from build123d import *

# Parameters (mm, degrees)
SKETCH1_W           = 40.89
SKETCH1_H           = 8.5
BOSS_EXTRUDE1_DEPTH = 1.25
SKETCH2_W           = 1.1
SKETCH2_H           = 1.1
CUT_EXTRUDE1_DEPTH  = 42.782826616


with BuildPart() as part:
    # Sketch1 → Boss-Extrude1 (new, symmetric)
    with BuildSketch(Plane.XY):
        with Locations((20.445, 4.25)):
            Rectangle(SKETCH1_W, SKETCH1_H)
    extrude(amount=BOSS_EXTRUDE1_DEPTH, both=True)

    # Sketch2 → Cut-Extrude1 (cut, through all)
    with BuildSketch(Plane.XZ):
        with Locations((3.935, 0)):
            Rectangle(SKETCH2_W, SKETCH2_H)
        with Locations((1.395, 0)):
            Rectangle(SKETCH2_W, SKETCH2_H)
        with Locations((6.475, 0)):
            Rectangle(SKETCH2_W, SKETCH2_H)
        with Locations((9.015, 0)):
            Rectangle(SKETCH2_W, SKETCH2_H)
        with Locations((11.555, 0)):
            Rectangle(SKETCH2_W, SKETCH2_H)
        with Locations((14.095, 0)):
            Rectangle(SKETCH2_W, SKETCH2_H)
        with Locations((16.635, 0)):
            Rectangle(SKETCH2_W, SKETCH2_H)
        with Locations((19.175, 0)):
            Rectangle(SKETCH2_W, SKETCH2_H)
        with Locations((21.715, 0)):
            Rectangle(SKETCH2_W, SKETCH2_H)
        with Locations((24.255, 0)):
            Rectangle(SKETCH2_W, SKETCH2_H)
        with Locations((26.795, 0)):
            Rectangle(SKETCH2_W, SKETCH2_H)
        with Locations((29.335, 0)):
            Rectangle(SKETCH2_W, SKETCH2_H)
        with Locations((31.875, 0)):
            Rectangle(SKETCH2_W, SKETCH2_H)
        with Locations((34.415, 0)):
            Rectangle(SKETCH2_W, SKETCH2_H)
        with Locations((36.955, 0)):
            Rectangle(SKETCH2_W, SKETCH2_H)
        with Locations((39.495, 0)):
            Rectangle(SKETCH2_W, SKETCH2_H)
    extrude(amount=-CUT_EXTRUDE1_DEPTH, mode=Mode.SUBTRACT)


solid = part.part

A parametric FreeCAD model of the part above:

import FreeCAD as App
import Part
import Sketcher
from FreeCAD import Vector


def add_polygon(sketch, points):
    """Adds a closed chain of lines whose ends are joined by coincident constraints."""
    first, n = sketch.GeometryCount, len(points)
    for a, b in zip(points, points[1:] + points[:1]):
        sketch.addGeometry(Part.LineSegment(App.Vector(*a, 0), App.Vector(*b, 0)), False)
    for i in range(n):
        sketch.addConstraint(Sketcher.Constraint("Coincident", first + i, 2, first + (i + 1) % n, 1))

doc = App.newDocument("Part")
body = doc.addObject("PartDesign::Body", "Body")

# Sketch on XY plane
sketch1 = body.newObject("Sketcher::SketchObject", "Sketch")
sketch1.AttachmentSupport = (doc.getObject("XY_Plane"), [""])
sketch1.MapMode = "FlatFace"
add_polygon(sketch1, [(0, 8), (0, 0), (41, 0), (41, 8)])  # lines 0-3
sketch1.addConstraint(Sketcher.Constraint("Vertical", 0))
sketch1.addConstraint(Sketcher.Constraint("Horizontal", 1))
sketch1.addConstraint(Sketcher.Constraint("Vertical", 2))
sketch1.addConstraint(Sketcher.Constraint("Horizontal", 3))
sketch1.addConstraint(Sketcher.Constraint("Coincident", 0, 2, -1, 1))
sketch1.addConstraint(Sketcher.Constraint("DistanceY", 0, 2, 0, 1, 8.5))
sketch1.addConstraint(Sketcher.Constraint("DistanceX", 1, 1, 1, 2, 40.89))
pad1 = body.newObject("PartDesign::Pad", "Pad")
pad1.Profile = sketch1
pad1.Length = 2.5
pad1.Midplane = True

# Sketch on XZ plane
sketch2 = body.newObject("Sketcher::SketchObject", "Sketch001")
sketch2.AttachmentSupport = (doc.getObject("XZ_Plane"), [""])
sketch2.MapMode = "FlatFace"
add_polygon(sketch2, [(3.4, 0.6), (3.4, -0.6), (4.5, -0.6), (4.5, 0.6)])  # lines 0-3
add_polygon(sketch2, [(0.8, 0.6), (0.8, -0.6), (1.9, -0.6), (1.9, 0.6)])  # lines 4-7
add_polygon(sketch2, [(5.9, 0.6), (5.9, -0.6), (7, -0.6), (7, 0.6)])  # lines 8-11
add_polygon(sketch2, [(8.5, 0.6), (8.5, -0.6), (9.6, -0.6), (9.6, 0.6)])  # lines 12-15
add_polygon(sketch2, [(11, 0.6), (11, -0.6), (12.1, -0.6), (12.1, 0.6)])  # lines 16-19
add_polygon(sketch2, [(13.5, 0.6), (13.5, -0.6), (14.6, -0.6), (14.6, 0.6)])  # lines 20-23
add_polygon(sketch2, [(16.1, 0.6), (16.1, -0.6), (17.2, -0.6), (17.2, 0.6)])  # lines 24-27
add_polygon(sketch2, [(18.6, 0.6), (18.6, -0.6), (19.7, -0.6), (19.7, 0.6)])  # lines 28-31
add_polygon(sketch2, [(21.2, 0.6), (21.2, -0.6), (22.3, -0.6), (22.3, 0.6)])  # lines 32-35
add_polygon(sketch2, [(23.7, 0.6), (23.7, -0.6), (24.8, -0.6), (24.8, 0.6)])  # lines 36-39
add_polygon(sketch2, [(26.2, 0.6), (26.2, -0.6), (27.3, -0.6), (27.3, 0.6)])  # lines 40-43
add_polygon(sketch2, [(28.8, 0.6), (28.8, -0.6), (29.9, -0.6), (29.9, 0.6)])  # lines 44-47
add_polygon(sketch2, [(31.3, 0.6), (31.3, -0.6), (32.4, -0.6), (32.4, 0.6)])  # lines 48-51
add_polygon(sketch2, [(33.9, 0.6), (33.9, -0.6), (35, -0.6), (35, 0.6)])  # lines 52-55
add_polygon(sketch2, [(36.4, 0.6), (36.4, -0.6), (37.5, -0.6), (37.5, 0.6)])  # lines 56-59
add_polygon(sketch2, [(38.9, 0.6), (38.9, -0.6), (40, -0.6), (40, 0.6)])  # lines 60-63
sketch2.addConstraint(Sketcher.Constraint("Vertical", 0))
sketch2.addConstraint(Sketcher.Constraint("Horizontal", 1))
sketch2.addConstraint(Sketcher.Constraint("Vertical", 2))
sketch2.addConstraint(Sketcher.Constraint("Horizontal", 3))
sketch2.addConstraint(Sketcher.Constraint("Vertical", 4))
sketch2.addConstraint(Sketcher.Constraint("Horizontal", 5))
sketch2.addConstraint(Sketcher.Constraint("Vertical", 6))
sketch2.addConstraint(Sketcher.Constraint("Horizontal", 7))
sketch2.addConstraint(Sketcher.Constraint("Vertical", 8))
sketch2.addConstraint(Sketcher.Constraint("Horizontal", 9))
sketch2.addConstraint(Sketcher.Constraint("Vertical", 10))
sketch2.addConstraint(Sketcher.Constraint("Horizontal", 11))
sketch2.addConstraint(Sketcher.Constraint("Vertical", 12))
sketch2.addConstraint(Sketcher.Constraint("Horizontal", 13))
sketch2.addConstraint(Sketcher.Constraint("Vertical", 14))
sketch2.addConstraint(Sketcher.Constraint("Horizontal", 15))
sketch2.addConstraint(Sketcher.Constraint("Vertical", 16))
sketch2.addConstraint(Sketcher.Constraint("Horizontal", 17))
sketch2.addConstraint(Sketcher.Constraint("Vertical", 18))
sketch2.addConstraint(Sketcher.Constraint("Horizontal", 19))
sketch2.addConstraint(Sketcher.Constraint("Vertical", 20))
sketch2.addConstraint(Sketcher.Constraint("Horizontal", 21))
sketch2.addConstraint(Sketcher.Constraint("Vertical", 22))
sketch2.addConstraint(Sketcher.Constraint("Horizontal", 23))
sketch2.addConstraint(Sketcher.Constraint("Vertical", 24))
sketch2.addConstraint(Sketcher.Constraint("Horizontal", 25))
sketch2.addConstraint(Sketcher.Constraint("Vertical", 26))
sketch2.addConstraint(Sketcher.Constraint("Horizontal", 27))
sketch2.addConstraint(Sketcher.Constraint("Vertical", 28))
sketch2.addConstraint(Sketcher.Constraint("Horizontal", 29))
sketch2.addConstraint(Sketcher.Constraint("Vertical", 30))
sketch2.addConstraint(Sketcher.Constraint("Horizontal", 31))
sketch2.addConstraint(Sketcher.Constraint("Vertical", 32))
sketch2.addConstraint(Sketcher.Constraint("Horizontal", 33))
sketch2.addConstraint(Sketcher.Constraint("Vertical", 34))
sketch2.addConstraint(Sketcher.Constraint("Horizontal", 35))
sketch2.addConstraint(Sketcher.Constraint("Vertical", 36))
sketch2.addConstraint(Sketcher.Constraint("Horizontal", 37))
sketch2.addConstraint(Sketcher.Constraint("Vertical", 38))
sketch2.addConstraint(Sketcher.Constraint("Horizontal", 39))
sketch2.addConstraint(Sketcher.Constraint("Vertical", 40))
sketch2.addConstraint(Sketcher.Constraint("Horizontal", 41))
sketch2.addConstraint(Sketcher.Constraint("Vertical", 42))
sketch2.addConstraint(Sketcher.Constraint("Horizontal", 43))
sketch2.addConstraint(Sketcher.Constraint("Vertical", 44))
sketch2.addConstraint(Sketcher.Constraint("Horizontal", 45))
sketch2.addConstraint(Sketcher.Constraint("Vertical", 46))
sketch2.addConstraint(Sketcher.Constraint("Horizontal", 47))
sketch2.addConstraint(Sketcher.Constraint("Vertical", 48))
sketch2.addConstraint(Sketcher.Constraint("Horizontal", 49))
sketch2.addConstraint(Sketcher.Constraint("Vertical", 50))
sketch2.addConstraint(Sketcher.Constraint("Horizontal", 51))
sketch2.addConstraint(Sketcher.Constraint("Vertical", 52))
sketch2.addConstraint(Sketcher.Constraint("Horizontal", 53))
sketch2.addConstraint(Sketcher.Constraint("Vertical", 54))
sketch2.addConstraint(Sketcher.Constraint("Horizontal", 55))
sketch2.addConstraint(Sketcher.Constraint("Vertical", 56))
sketch2.addConstraint(Sketcher.Constraint("Horizontal", 57))
sketch2.addConstraint(Sketcher.Constraint("Vertical", 58))
sketch2.addConstraint(Sketcher.Constraint("Horizontal", 59))
sketch2.addConstraint(Sketcher.Constraint("Vertical", 60))
sketch2.addConstraint(Sketcher.Constraint("Horizontal", 61))
sketch2.addConstraint(Sketcher.Constraint("Vertical", 62))
sketch2.addConstraint(Sketcher.Constraint("Horizontal", 63))
sketch2.addConstraint(Sketcher.Constraint("Horizontal", 1, 2, 4, 2))
sketch2.addConstraint(Sketcher.Constraint("Horizontal", 3, 2, 6, 2))
sketch2.addConstraint(Sketcher.Constraint("Horizontal", 5, 2, 8, 2))
sketch2.addConstraint(Sketcher.Constraint("Horizontal", 7, 2, 10, 2))
sketch2.addConstraint(Sketcher.Constraint("Horizontal", 9, 2, 12, 2))
sketch2.addConstraint(Sketcher.Constraint("Horizontal", 11, 2, 14, 2))
sketch2.addConstraint(Sketcher.Constraint("Horizontal", 13, 2, 16, 2))
sketch2.addConstraint(Sketcher.Constraint("Horizontal", 15, 2, 18, 2))
sketch2.addConstraint(Sketcher.Constraint("Horizontal", 17, 2, 20, 2))
sketch2.addConstraint(Sketcher.Constraint("Horizontal", 19, 2, 22, 2))
sketch2.addConstraint(Sketcher.Constraint("Horizontal", 21, 2, 24, 2))
sketch2.addConstraint(Sketcher.Constraint("Horizontal", 23, 2, 26, 2))
sketch2.addConstraint(Sketcher.Constraint("Horizontal", 25, 2, 28, 2))
sketch2.addConstraint(Sketcher.Constraint("Horizontal", 27, 2, 30, 2))
sketch2.addConstraint(Sketcher.Constraint("Horizontal", 29, 2, 32, 2))
sketch2.addConstraint(Sketcher.Constraint("Horizontal", 31, 2, 34, 2))
sketch2.addConstraint(Sketcher.Constraint("Horizontal", 33, 2, 36, 2))
sketch2.addConstraint(Sketcher.Constraint("Horizontal", 35, 2, 38, 2))
sketch2.addConstraint(Sketcher.Constraint("Horizontal", 37, 2, 40, 2))
sketch2.addConstraint(Sketcher.Constraint("Horizontal", 39, 2, 42, 2))
sketch2.addConstraint(Sketcher.Constraint("Horizontal", 41, 2, 44, 2))
sketch2.addConstraint(Sketcher.Constraint("Horizontal", 43, 2, 46, 2))
sketch2.addConstraint(Sketcher.Constraint("Horizontal", 45, 2, 48, 2))
sketch2.addConstraint(Sketcher.Constraint("Horizontal", 47, 2, 50, 2))
sketch2.addConstraint(Sketcher.Constraint("Horizontal", 49, 2, 52, 2))
sketch2.addConstraint(Sketcher.Constraint("Horizontal", 51, 2, 54, 2))
sketch2.addConstraint(Sketcher.Constraint("Horizontal", 53, 2, 56, 2))
sketch2.addConstraint(Sketcher.Constraint("Horizontal", 55, 2, 58, 2))
sketch2.addConstraint(Sketcher.Constraint("Horizontal", 57, 2, 60, 2))
sketch2.addConstraint(Sketcher.Constraint("Horizontal", 59, 2, 62, 2))
sketch2.addConstraint(Sketcher.Constraint("Equal", 3, 5))
sketch2.addConstraint(Sketcher.Constraint("Equal", 7, 9))
sketch2.addConstraint(Sketcher.Constraint("Equal", 11, 13))
sketch2.addConstraint(Sketcher.Constraint("Equal", 15, 17))
sketch2.addConstraint(Sketcher.Constraint("Equal", 19, 21))
sketch2.addConstraint(Sketcher.Constraint("Equal", 23, 25))
sketch2.addConstraint(Sketcher.Constraint("Equal", 27, 29))
sketch2.addConstraint(Sketcher.Constraint("Equal", 31, 33))
sketch2.addConstraint(Sketcher.Constraint("Equal", 35, 37))
sketch2.addConstraint(Sketcher.Constraint("Equal", 39, 41))
sketch2.addConstraint(Sketcher.Constraint("Equal", 43, 45))
sketch2.addConstraint(Sketcher.Constraint("Equal", 47, 49))
sketch2.addConstraint(Sketcher.Constraint("Equal", 51, 53))
sketch2.addConstraint(Sketcher.Constraint("Equal", 55, 57))
sketch2.addConstraint(Sketcher.Constraint("Equal", 59, 61))
sketch2.addConstraint(Sketcher.Constraint("Equal", 63, 0))
sketch2.addConstraint(Sketcher.Constraint("DistanceX", 1, 1, 1, 2, 1.1))
sketch2.addConstraint(Sketcher.Constraint("DistanceY", 0, 2, -1, 1, 0.55))
sketch2.addConstraint(Sketcher.Constraint("DistanceX", -1, 1, 0, 2, 3.385))
sketch2.addConstraint(Sketcher.Constraint("DistanceX", -1, 1, 4, 2, 0.845))
sketch2.addConstraint(Sketcher.Constraint("DistanceX", -1, 1, 8, 2, 5.925))
sketch2.addConstraint(Sketcher.Constraint("DistanceX", -1, 1, 12, 2, 8.465))
sketch2.addConstraint(Sketcher.Constraint("DistanceX", -1, 1, 16, 2, 11.005))
sketch2.addConstraint(Sketcher.Constraint("DistanceX", -1, 1, 20, 2, 13.545))
sketch2.addConstraint(Sketcher.Constraint("DistanceX", -1, 1, 24, 2, 16.085))
sketch2.addConstraint(Sketcher.Constraint("DistanceX", -1, 1, 28, 2, 18.625))
sketch2.addConstraint(Sketcher.Constraint("DistanceX", -1, 1, 32, 2, 21.165))
sketch2.addConstraint(Sketcher.Constraint("DistanceX", -1, 1, 36, 2, 23.705))
sketch2.addConstraint(Sketcher.Constraint("DistanceX", -1, 1, 40, 2, 26.245))
sketch2.addConstraint(Sketcher.Constraint("DistanceX", -1, 1, 44, 2, 28.785))
sketch2.addConstraint(Sketcher.Constraint("DistanceX", -1, 1, 48, 2, 31.325))
sketch2.addConstraint(Sketcher.Constraint("DistanceX", -1, 1, 52, 2, 33.865))
sketch2.addConstraint(Sketcher.Constraint("DistanceX", -1, 1, 56, 2, 36.405))
sketch2.addConstraint(Sketcher.Constraint("DistanceX", -1, 1, 60, 2, 38.945))
pocket1 = body.newObject("PartDesign::Pocket", "Pocket")
pocket1.Profile = sketch2
pocket1.Type = "ThroughAll"

doc.recompute()
